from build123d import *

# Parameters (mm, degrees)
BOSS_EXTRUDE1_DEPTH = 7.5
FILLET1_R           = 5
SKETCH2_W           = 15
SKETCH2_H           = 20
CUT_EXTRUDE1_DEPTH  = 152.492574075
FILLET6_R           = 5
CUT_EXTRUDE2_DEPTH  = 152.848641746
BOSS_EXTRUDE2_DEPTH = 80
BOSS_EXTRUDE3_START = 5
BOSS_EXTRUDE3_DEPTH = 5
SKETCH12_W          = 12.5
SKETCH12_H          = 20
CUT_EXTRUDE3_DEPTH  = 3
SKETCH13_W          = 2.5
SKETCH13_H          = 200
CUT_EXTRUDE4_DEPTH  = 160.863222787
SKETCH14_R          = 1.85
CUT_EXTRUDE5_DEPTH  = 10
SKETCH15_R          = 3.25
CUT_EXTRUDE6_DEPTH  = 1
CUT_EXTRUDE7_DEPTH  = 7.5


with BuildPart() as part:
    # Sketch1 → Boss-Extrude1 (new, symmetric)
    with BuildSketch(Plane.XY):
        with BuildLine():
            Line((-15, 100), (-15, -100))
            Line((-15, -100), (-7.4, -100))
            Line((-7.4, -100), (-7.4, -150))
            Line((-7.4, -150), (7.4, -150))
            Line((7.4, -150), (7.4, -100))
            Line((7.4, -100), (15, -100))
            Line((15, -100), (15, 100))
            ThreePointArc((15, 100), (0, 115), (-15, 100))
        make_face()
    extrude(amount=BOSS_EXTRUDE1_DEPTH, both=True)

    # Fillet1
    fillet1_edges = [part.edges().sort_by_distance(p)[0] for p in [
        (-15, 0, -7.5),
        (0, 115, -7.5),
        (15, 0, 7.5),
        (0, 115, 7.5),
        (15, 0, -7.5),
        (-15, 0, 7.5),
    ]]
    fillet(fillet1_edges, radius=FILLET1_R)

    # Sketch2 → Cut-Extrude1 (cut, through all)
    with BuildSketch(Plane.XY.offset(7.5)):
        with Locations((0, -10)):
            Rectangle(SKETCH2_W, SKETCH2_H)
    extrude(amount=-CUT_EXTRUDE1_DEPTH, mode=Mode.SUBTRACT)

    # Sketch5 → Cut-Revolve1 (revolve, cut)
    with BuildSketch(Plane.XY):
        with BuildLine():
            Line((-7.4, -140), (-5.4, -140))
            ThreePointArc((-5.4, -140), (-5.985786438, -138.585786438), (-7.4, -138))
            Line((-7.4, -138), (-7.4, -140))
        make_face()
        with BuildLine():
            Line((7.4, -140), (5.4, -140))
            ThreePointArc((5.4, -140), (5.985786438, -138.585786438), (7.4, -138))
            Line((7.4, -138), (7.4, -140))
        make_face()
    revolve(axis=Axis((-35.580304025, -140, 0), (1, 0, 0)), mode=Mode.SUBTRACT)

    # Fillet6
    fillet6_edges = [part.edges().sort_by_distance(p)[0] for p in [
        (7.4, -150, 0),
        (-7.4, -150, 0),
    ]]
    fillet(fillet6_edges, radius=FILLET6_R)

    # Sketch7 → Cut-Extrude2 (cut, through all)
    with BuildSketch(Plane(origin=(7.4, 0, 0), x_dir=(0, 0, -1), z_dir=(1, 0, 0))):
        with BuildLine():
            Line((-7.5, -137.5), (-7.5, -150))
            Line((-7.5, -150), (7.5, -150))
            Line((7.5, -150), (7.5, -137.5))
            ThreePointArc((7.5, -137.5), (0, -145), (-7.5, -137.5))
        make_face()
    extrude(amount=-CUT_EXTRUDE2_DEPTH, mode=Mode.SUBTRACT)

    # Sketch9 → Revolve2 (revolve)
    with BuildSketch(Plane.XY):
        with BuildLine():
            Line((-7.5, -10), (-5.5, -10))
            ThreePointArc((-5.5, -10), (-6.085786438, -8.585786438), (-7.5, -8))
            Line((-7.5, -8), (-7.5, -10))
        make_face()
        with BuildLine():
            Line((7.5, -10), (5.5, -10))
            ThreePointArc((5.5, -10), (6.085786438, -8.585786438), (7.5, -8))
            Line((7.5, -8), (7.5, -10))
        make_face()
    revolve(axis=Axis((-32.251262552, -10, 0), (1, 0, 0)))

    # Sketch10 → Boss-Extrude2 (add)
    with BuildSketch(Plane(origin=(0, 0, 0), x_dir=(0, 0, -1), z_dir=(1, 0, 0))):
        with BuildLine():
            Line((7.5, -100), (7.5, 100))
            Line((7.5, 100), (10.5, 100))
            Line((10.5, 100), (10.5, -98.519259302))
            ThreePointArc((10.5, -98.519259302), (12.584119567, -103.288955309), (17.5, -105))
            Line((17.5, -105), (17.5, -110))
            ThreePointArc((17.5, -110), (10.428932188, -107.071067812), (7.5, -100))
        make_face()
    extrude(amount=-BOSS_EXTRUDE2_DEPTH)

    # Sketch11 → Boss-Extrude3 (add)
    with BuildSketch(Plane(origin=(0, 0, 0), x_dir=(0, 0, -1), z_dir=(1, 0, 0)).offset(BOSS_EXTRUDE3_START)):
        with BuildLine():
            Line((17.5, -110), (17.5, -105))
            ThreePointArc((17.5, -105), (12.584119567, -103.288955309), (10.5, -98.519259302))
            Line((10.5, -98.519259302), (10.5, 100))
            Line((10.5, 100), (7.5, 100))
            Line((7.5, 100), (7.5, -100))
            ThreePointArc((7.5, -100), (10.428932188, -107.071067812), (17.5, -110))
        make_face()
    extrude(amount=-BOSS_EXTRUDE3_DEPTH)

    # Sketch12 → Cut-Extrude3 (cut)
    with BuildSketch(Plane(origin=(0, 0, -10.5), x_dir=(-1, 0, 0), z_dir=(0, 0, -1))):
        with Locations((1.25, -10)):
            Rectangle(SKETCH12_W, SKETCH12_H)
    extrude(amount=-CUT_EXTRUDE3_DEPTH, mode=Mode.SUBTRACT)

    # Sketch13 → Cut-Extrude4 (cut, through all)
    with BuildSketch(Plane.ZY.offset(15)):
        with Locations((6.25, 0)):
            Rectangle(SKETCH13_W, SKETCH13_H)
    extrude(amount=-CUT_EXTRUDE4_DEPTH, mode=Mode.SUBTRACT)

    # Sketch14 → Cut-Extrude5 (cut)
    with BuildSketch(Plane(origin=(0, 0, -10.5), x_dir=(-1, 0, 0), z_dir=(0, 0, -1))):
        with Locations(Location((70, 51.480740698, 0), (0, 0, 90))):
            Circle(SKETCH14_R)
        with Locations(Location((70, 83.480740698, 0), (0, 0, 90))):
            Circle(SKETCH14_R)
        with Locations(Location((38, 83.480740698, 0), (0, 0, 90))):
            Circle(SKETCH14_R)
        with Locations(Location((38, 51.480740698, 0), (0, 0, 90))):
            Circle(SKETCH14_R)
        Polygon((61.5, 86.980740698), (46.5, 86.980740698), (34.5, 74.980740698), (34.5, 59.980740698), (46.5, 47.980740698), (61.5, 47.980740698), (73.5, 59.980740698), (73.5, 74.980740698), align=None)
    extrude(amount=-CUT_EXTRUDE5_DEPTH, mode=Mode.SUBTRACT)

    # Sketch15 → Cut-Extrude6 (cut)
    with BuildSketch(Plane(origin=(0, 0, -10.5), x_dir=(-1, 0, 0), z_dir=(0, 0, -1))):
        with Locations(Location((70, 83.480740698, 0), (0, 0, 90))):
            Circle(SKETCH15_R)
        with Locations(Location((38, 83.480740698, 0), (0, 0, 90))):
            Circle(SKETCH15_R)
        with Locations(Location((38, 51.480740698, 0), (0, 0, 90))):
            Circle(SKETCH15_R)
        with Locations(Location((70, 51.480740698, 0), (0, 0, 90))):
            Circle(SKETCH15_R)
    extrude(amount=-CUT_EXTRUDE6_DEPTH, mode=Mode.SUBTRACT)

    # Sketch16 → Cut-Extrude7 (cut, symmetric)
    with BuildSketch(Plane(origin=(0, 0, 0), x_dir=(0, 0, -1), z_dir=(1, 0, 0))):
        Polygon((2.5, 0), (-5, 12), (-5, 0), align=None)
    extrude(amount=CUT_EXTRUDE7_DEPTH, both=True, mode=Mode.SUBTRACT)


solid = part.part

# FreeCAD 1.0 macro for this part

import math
import FreeCAD as App
import Part
import Sketcher
from FreeCAD import Vector
Q = App.Units.Quantity


def edges_at(feature, points):
    """Names of the edges that pass closest to the given points."""
    edges = feature.Shape.Edges
    near = lambda p: min(range(len(edges)), key=lambda i: edges[i].distToShape(Part.Vertex(*p))[0])
    return sorted({f"Edge{near(p) + 1}" for p in points})


def add_polygon(sketch, points):
    """Adds a closed chain of lines whose ends are joined by coincident constraints."""
    first, n = sketch.GeometryCount, len(points)
    for a, b in zip(points, points[1:] + points[:1]):
        sketch.addGeometry(Part.LineSegment(App.Vector(*a, 0), App.Vector(*b, 0)), False)
    for i in range(n):
        sketch.addConstraint(Sketcher.Constraint("Coincident", first + i, 2, first + (i + 1) % n, 1))

doc = App.newDocument("Part")
body = doc.addObject("PartDesign::Body", "Body")

# Sketch on XY plane
sketch1 = body.newObject("Sketcher::SketchObject", "Sketch")
sketch1.AttachmentSupport = (doc.getObject("XY_Plane"), [""])
sketch1.MapMode = "FlatFace"
sketch1.addGeometry([
    Part.LineSegment(Vector(-15, 100, 0), Vector(-15, -100, 0)),  # 0
    Part.LineSegment(Vector(-15, -100, 0), Vector(-7, -100, 0)),  # 1
    Part.LineSegment(Vector(-7, -100, 0), Vector(-7, -150, 0)),  # 2
    Part.LineSegment(Vector(-7, -150, 0), Vector(7, -150, 0)),  # 3
    Part.LineSegment(Vector(7, -150, 0), Vector(7, -100, 0)),  # 4
    Part.LineSegment(Vector(7, -100, 0), Vector(15, -100, 0)),  # 5
    Part.LineSegment(Vector(15, -100, 0), Vector(15, 100, 0)),  # 6
    Part.ArcOfCircle(Part.Circle(Vector(0, 100, 0), Vector(0, 0, 1), 15), math.radians(0), math.radians(180)),  # 7
], False)
sketch1.addConstraint([
    Sketcher.Constraint("Coincident", 0, 2, 1, 1),
    Sketcher.Constraint("Coincident", 1, 2, 2, 1),
    Sketcher.Constraint("Coincident", 2, 2, 3, 1),
    Sketcher.Constraint("Coincident", 3, 2, 4, 1),
    Sketcher.Constraint("Coincident", 4, 2, 5, 1),
    Sketcher.Constraint("Coincident", 5, 2, 6, 1),
    Sketcher.Constraint("Tangent", 6, 2, 7, 1),
    Sketcher.Constraint("Tangent", 7, 2, 0, 1),
    Sketcher.Constraint("Vertical", 0),
    Sketcher.Constraint("Horizontal", 1),
    Sketcher.Constraint("Vertical", 2),
    Sketcher.Constraint("Horizontal", 3),
    Sketcher.Constraint("Vertical", 4),
    Sketcher.Constraint("Horizontal", 5),
    Sketcher.Constraint("Vertical", 6),
    Sketcher.Constraint("Symmetric", 0, 2, 6, 2, -1, 1),
    Sketcher.Constraint("Symmetric", 1, 2, 4, 2, -2),
    Sketcher.Constraint("Radius", 7, Q("15 mm")),
    Sketcher.Constraint("DistanceY", 0, 2, 0, 1, Q("200 mm")),
    Sketcher.Constraint("DistanceY", 2, 2, 2, 1, Q("50 mm")),
    Sketcher.Constraint("DistanceX", 1, 1, 1, 2, Q("7.6 mm")),
])
pad1 = body.newObject("PartDesign::Pad", "Pad")
pad1.Profile = sketch1
pad1.Length = 15
pad1.Midplane = True
doc.recompute()

fillet = body.newObject("PartDesign::Fillet", "Fillet")
fillet.Base = (pad1, edges_at(pad1, [
    (-15, 0, -7.5),
    (0, 115, -7.5),
    (15, 0, 7.5),
    (0, 115, 7.5),
    (15, 0, -7.5),
    (-15, 0, 7.5),
]))
fillet.Radius = 5

# Sketch on XY plane
sketch2 = body.newObject("Sketcher::SketchObject", "Sketch001")
sketch2.AttachmentSupport = (doc.getObject("XY_Plane"), [""])
sketch2.MapMode = "FlatFace"
sketch2.AttachmentOffset = App.Placement(Vector(0, 0, 7.5), App.Rotation())
add_polygon(sketch2, [(-8, 0), (-8, -20), (8, -20), (8, 0)])  # lines 0-3
sketch2.addConstraint([
    Sketcher.Constraint("Vertical", 0),
    Sketcher.Constraint("Horizontal", 1),
    Sketcher.Constraint("Vertical", 2),
    Sketcher.Constraint("Horizontal", 3),
    Sketcher.Constraint("Symmetric", 2, 2, 3, 2, -1, 1),
    Sketcher.Constraint("DistanceX", 1, 1, 1, 2, Q("15 mm")),
    Sketcher.Constraint("DistanceY", 0, 2, 0, 1, Q("20 mm")),
])
pocket1 = body.newObject("PartDesign::Pocket", "Pocket")
pocket1.Profile = sketch2
pocket1.Type = "ThroughAll"

# Sketch on XY plane
sketch3 = body.newObject("Sketcher::SketchObject", "Sketch002")
sketch3.AttachmentSupport = (doc.getObject("XY_Plane"), [""])
sketch3.MapMode = "FlatFace"
sketch3.addGeometry([
    Part.LineSegment(Vector(-7.4, -140, 0), Vector(-5.4, -140, 0)),  # 0
    Part.ArcOfCircle(Part.Circle(Vector(-7.4, -140, 0), Vector(0, 0, 1), 2), math.radians(0), math.radians(90)),  # 1
    Part.LineSegment(Vector(-7.4, -138, 0), Vector(-7.4, -140, 0)),  # 2
    Part.LineSegment(Vector(5.4, -140, 0), Vector(7.4, -140, 0)),  # 3
    Part.LineSegment(Vector(7.4, -140, 0), Vector(7.4, -138, 0)),  # 4
    Part.ArcOfCircle(Part.Circle(Vector(7.4, -140, 0), Vector(0, 0, 1), 2), math.radians(90), math.radians(180)),  # 5
], False)
sketch3.addGeometry(Part.LineSegment(Vector(-7.4, -140, 0), Vector(7.4, -140, 0)), True)  # axis
sketch3.addConstraint([
    Sketcher.Constraint("Coincident", 0, 2, 1, 1),
    Sketcher.Constraint("Coincident", 1, 2, 2, 1),
    Sketcher.Constraint("Coincident", 2, 2, 0, 1),
    Sketcher.Constraint("Coincident", 3, 2, 4, 1),
    Sketcher.Constraint("Coincident", 4, 2, 5, 1),
    Sketcher.Constraint("Coincident", 5, 2, 3, 1),
    Sketcher.Constraint("Horizontal", 0),
    Sketcher.Constraint("Vertical", 2),
    Sketcher.Constraint("Horizontal", 3),
    Sketcher.Constraint("Vertical", 4),
    Sketcher.Constraint("Horizontal", 6),
    Sketcher.Constraint("Coincident", 2, 2, 1, 3),
    Sketcher.Constraint("Coincident", 3, 2, 5, 3),
    Sketcher.Constraint("Coincident", 6, 1, 1, 3),
    Sketcher.Constraint("Coincident", 6, 2, 5, 3),
    Sketcher.Constraint("Equal", 1, 5),
    Sketcher.Constraint("Radius", 1, Q("2 mm")),
    Sketcher.Constraint("DistanceX", 6, 1, 6, 2, Q("14.8 mm")),
    Sketcher.Constraint("DistanceY", 1, 3, -1, 1, Q("140 mm")),
    Sketcher.Constraint("DistanceX", 1, 3, -1, 1, Q("7.4 mm")),
])
groove = body.newObject("PartDesign::Groove", "Groove")
groove.Profile = sketch3
groove.ReferenceAxis = (sketch3, ["Axis0"])
groove.Angle = 360
doc.recompute()

fillet2 = body.newObject("PartDesign::Fillet", "Fillet001")
fillet2.Base = (groove, edges_at(groove, [(7.4, -150, 0), (-7.4, -150, 0)]))
fillet2.Radius = 5

# Sketch on YZ plane
sketch4 = body.newObject("Sketcher::SketchObject", "Sketch003")
sketch4.AttachmentSupport = (doc.getObject("YZ_Plane"), [""])
sketch4.MapMode = "FlatFace"
sketch4.AttachmentOffset = App.Placement(Vector(0, 0, 7.4), App.Rotation())
sketch4.addGeometry([
    Part.LineSegment(Vector(-138, 8, 0), Vector(-150, 8, 0)),
    Part.LineSegment(Vector(-150, 8, 0), Vector(-150, -8, 0)),
    Part.LineSegment(Vector(-150, -8, 0), Vector(-138, -8, 0)),
    Part.ArcOfCircle(Part.Circle(Vector(-138, 0, 0), Vector(0, 0, 1), 8), math.radians(90), math.radians(270)),
], False)
sketch4.addConstraint([
    Sketcher.Constraint("Coincident", 0, 2, 1, 1),
    Sketcher.Constraint("Coincident", 1, 2, 2, 1),
    Sketcher.Constraint("Tangent", 2, 2, 3, 2),
    Sketcher.Constraint("Tangent", 3, 1, 0, 1),
    Sketcher.Constraint("Horizontal", 0),
    Sketcher.Constraint("Vertical", 1),
    Sketcher.Constraint("Horizontal", 2),
    Sketcher.Constraint("PointOnObject", 3, 3, -1),
    Sketcher.Constraint("Radius", 3, Q("7.5 mm")),
    Sketcher.Constraint("DistanceX", 0, 2, 0, 1, Q("12.5 mm")),
    Sketcher.Constraint("DistanceX", 0, 2, -1, 1, Q("150 mm")),
])
pocket2 = body.newObject("PartDesign::Pocket", "Pocket001")
pocket2.Profile = sketch4
pocket2.Type = "ThroughAll"

# Sketch on XY plane
sketch5 = body.newObject("Sketcher::SketchObject", "Sketch004")
sketch5.AttachmentSupport = (doc.getObject("XY_Plane"), [""])
sketch5.MapMode = "FlatFace"
sketch5.addGeometry([
    Part.LineSegment(Vector(-7.5, -10, 0), Vector(-5.5, -10, 0)),  # 0
    Part.ArcOfCircle(Part.Circle(Vector(-7.5, -10, 0), Vector(0, 0, 1), 2), math.radians(0), math.radians(90)),  # 1
    Part.LineSegment(Vector(-7.5, -8, 0), Vector(-7.5, -10, 0)),  # 2
    Part.LineSegment(Vector(5.5, -10, 0), Vector(7.5, -10, 0)),  # 3
    Part.LineSegment(Vector(7.5, -10, 0), Vector(7.5, -8, 0)),  # 4
    Part.ArcOfCircle(Part.Circle(Vector(7.5, -10, 0), Vector(0, 0, 1), 2), math.radians(90), math.radians(180)),  # 5
], False)
sketch5.addGeometry(Part.LineSegment(Vector(-7.5, -10, 0), Vector(7.5, -10, 0)), True)  # axis
sketch5.addConstraint([
    Sketcher.Constraint("Coincident", 0, 2, 1, 1),
    Sketcher.Constraint("Coincident", 1, 2, 2, 1),
    Sketcher.Constraint("Coincident", 2, 2, 0, 1),
    Sketcher.Constraint("Coincident", 3, 2, 4, 1),
    Sketcher.Constraint("Coincident", 4, 2, 5, 1),
    Sketcher.Constraint("Coincident", 5, 2, 3, 1),
    Sketcher.Constraint("Horizontal", 0),
    Sketcher.Constraint("Vertical", 2),
    Sketcher.Constraint("Horizontal", 3),
    Sketcher.Constraint("Vertical", 4),
    Sketcher.Constraint("Horizontal", 6),
    Sketcher.Constraint("Coincident", 2, 2, 1, 3),
    Sketcher.Constraint("Coincident", 3, 2, 5, 3),
    Sketcher.Constraint("Coincident", 6, 1, 1, 3),
    Sketcher.Constraint("Coincident", 6, 2, 5, 3),
    Sketcher.Constraint("Equal", 1, 5),
    Sketcher.Constraint("Radius", 1, Q("2 mm")),
    Sketcher.Constraint("DistanceX", 6, 1, 6, 2, Q("15 mm")),
    Sketcher.Constraint("DistanceY", 1, 3, -1, 1, Q("10 mm")),
    Sketcher.Constraint("DistanceX", 1, 3, -1, 1, Q("7.5 mm")),
])
revolution = body.newObject("PartDesign::Revolution", "Revolution")
revolution.Profile = sketch5
revolution.ReferenceAxis = (sketch5, ["Axis0"])
revolution.Angle = 360

# Sketch on YZ plane
sketch6 = body.newObject("Sketcher::SketchObject", "Sketch005")
sketch6.AttachmentSupport = (doc.getObject("YZ_Plane"), [""])
sketch6.MapMode = "FlatFace"
sketch6.addGeometry([
    Part.LineSegment(Vector(100, -7.5, 0), Vector(-100, -7.5, 0)),  # 0
    Part.ArcOfCircle(Part.Circle(Vector(-100, -17.5, 0), Vector(0, 0, 1), 10), math.radians(90), math.radians(180)),  # 1
    Part.LineSegment(Vector(-110, -17.5, 0), Vector(-105, -17.5, 0)),  # 2
    Part.ArcOfCircle(Part.Circle(Vector(-98.5, -17, 0), Vector(0, 0, 1), 6.5), math.radians(90), math.radians(184)),  # 3
    Part.LineSegment(Vector(-98.5, -10.5, 0), Vector(100, -10.5, 0)),  # 4
    Part.LineSegment(Vector(100, -10.5, 0), Vector(100, -7.5, 0)),  # 5
], False)
sketch6.addConstraint([
    Sketcher.Constraint("Tangent", 0, 2, 1, 1),
    Sketcher.Constraint("Coincident", 1, 2, 2, 1),
    Sketcher.Constraint("Coincident", 2, 2, 3, 2),
    Sketcher.Constraint("Tangent", 3, 1, 4, 1),
    Sketcher.Constraint("Coincident", 4, 2, 5, 1),
    Sketcher.Constraint("Coincident", 5, 2, 0, 1),
    Sketcher.Constraint("Horizontal", 0),
    Sketcher.Constraint("Horizontal", 2),
    Sketcher.Constraint("Horizontal", 4),
    Sketcher.Constraint("Vertical", 5),
    Sketcher.Constraint("Radius", 1, Q("10 mm")),
    Sketcher.Constraint("Radius", 3, Q("6.5 mm")),
    Sketcher.Constraint("DistanceX", 0, 2, 0, 1, Q("200 mm")),
    Sketcher.Constraint("DistanceX", 2, 1, 2, 2, Q("5 mm")),
    Sketcher.Constraint("DistanceY", 5, 1, 5, 2, Q("3 mm")),
    Sketcher.Constraint("DistanceX", 1, 3, -1, 1, Q("100 mm")),
    Sketcher.Constraint("DistanceY", 3, 3, -1, 1, Q("17 mm")),
    Sketcher.Constraint("DistanceY", 1, 2, 0, 2, Q("10 mm")),
])
pad2 = body.newObject("PartDesign::Pad", "Pad001")
pad2.Profile = sketch6
pad2.Length = 80
pad2.Reversed = True

# Sketch on YZ plane
sketch7 = body.newObject("Sketcher::SketchObject", "Sketch006")
sketch7.AttachmentSupport = (doc.getObject("YZ_Plane"), [""])
sketch7.MapMode = "FlatFace"
sketch7.AttachmentOffset = App.Placement(Vector(0, 0, 5), App.Rotation())
sketch7.addGeometry([
    Part.LineSegment(Vector(-110, -17.5, 0), Vector(-105, -17.5, 0)),  # 0
    Part.ArcOfCircle(Part.Circle(Vector(-98.5, -17, 0), Vector(0, 0, 1), 6.5), math.radians(90), math.radians(184)),  # 1
    Part.LineSegment(Vector(-98.5, -10.5, 0), Vector(100, -10.5, 0)),  # 2
    Part.LineSegment(Vector(100, -10.5, 0), Vector(100, -7.5, 0)),  # 3
    Part.LineSegment(Vector(100, -7.5, 0), Vector(-100, -7.5, 0)),  # 4
    Part.ArcOfCircle(Part.Circle(Vector(-100, -17.5, 0), Vector(0, 0, 1), 10), math.radians(90), math.radians(180)),  # 5
], False)
sketch7.addConstraint([
    Sketcher.Constraint("Coincident", 0, 2, 1, 2),
    Sketcher.Constraint("Tangent", 1, 1, 2, 1),
    Sketcher.Constraint("Coincident", 2, 2, 3, 1),
    Sketcher.Constraint("Coincident", 3, 2, 4, 1),
    Sketcher.Constraint("Tangent", 4, 2, 5, 1),
    Sketcher.Constraint("Coincident", 5, 2, 0, 1),
    Sketcher.Constraint("Horizontal", 0),
    Sketcher.Constraint("Horizontal", 2),
    Sketcher.Constraint("Vertical", 3),
    Sketcher.Constraint("Horizontal", 4),
    Sketcher.Constraint("Horizontal", 5, 3, 0, 2),
    Sketcher.Constraint("Radius", 5, Q("10 mm")),
    Sketcher.Constraint("Radius", 1, Q("6.5 mm")),
    Sketcher.Constraint("DistanceX", 0, 1, 0, 2, Q("5 mm")),
    Sketcher.Constraint("DistanceX", 4, 2, 4, 1, Q("200 mm")),
    Sketcher.Constraint("DistanceY", 3, 1, 3, 2, Q("3 mm")),
    Sketcher.Constraint("DistanceY", 1, 3, -1, 1, Q("17 mm")),
    Sketcher.Constraint("DistanceX", 5, 3, -1, 1, Q("100 mm")),
])
pad3 = body.newObject("PartDesign::Pad", "Pad002")
pad3.Profile = sketch7
pad3.Length = 5
pad3.Reversed = True

# Sketch on XY plane
sketch8 = body.newObject("Sketcher::SketchObject", "Sketch007")
sketch8.AttachmentSupport = (doc.getObject("XY_Plane"), [""])
sketch8.MapMode = "FlatFace"
sketch8.AttachmentOffset = App.Placement(Vector(0, 0, -10.5), App.Rotation())
add_polygon(sketch8, [(5, 0), (5, -20), (-8, -20), (-8, 0)])  # lines 0-3
sketch8.addConstraint([
    Sketcher.Constraint("Vertical", 0),
    Sketcher.Constraint("Horizontal", 1),
    Sketcher.Constraint("Vertical", 2),
    Sketcher.Constraint("Horizontal", 3),
    Sketcher.Constraint("PointOnObject", 2, 2, -1),
    Sketcher.Constraint("DistanceY", 0, 2, 0, 1, Q("20 mm")),
    Sketcher.Constraint("DistanceX", 1, 2, 1, 1, Q("12.5 mm")),
    Sketcher.Constraint("DistanceX", -1, 1, 0, 2, Q("5 mm")),
])
pocket3 = body.newObject("PartDesign::Pocket", "Pocket002")
pocket3.Profile = sketch8
pocket3.Length = 3
pocket3.Reversed = True

# Sketch on YZ plane
sketch9 = body.newObject("Sketcher::SketchObject", "Sketch008")
sketch9.AttachmentSupport = (doc.getObject("YZ_Plane"), [""])
sketch9.MapMode = "FlatFace"
sketch9.AttachmentOffset = App.Placement(Vector(0, 0, -15), App.Rotation())
add_polygon(sketch9, [(100, 5), (-100, 5), (-100, 7.5), (100, 7.5)])  # lines 0-3
sketch9.addConstraint([
    Sketcher.Constraint("Horizontal", 0),
    Sketcher.Constraint("Vertical", 1),
    Sketcher.Constraint("Horizontal", 2),
    Sketcher.Constraint("Vertical", 3),
    Sketcher.Constraint("DistanceX", 0, 2, 0, 1, Q("200 mm")),
    Sketcher.Constraint("DistanceY", 1, 1, 1, 2, Q("2.5 mm")),
    Sketcher.Constraint("DistanceX", 0, 2, -1, 1, Q("100 mm")),
    Sketcher.Constraint("DistanceY", -1, 1, 0, 2, Q("5 mm")),
])
pocket4 = body.newObject("PartDesign::Pocket", "Pocket003")
pocket4.Profile = sketch9
pocket4.Type = "ThroughAll"
pocket4.Reversed = True

# Sketch on XY plane
sketch10 = body.newObject("Sketcher::SketchObject", "Sketch009")
sketch10.AttachmentSupport = (doc.getObject("XY_Plane"), [""])
sketch10.MapMode = "FlatFace"
sketch10.AttachmentOffset = App.Placement(Vector(0, 0, -10.5), App.Rotation())
sketch10.addGeometry(Part.Circle(Vector(-70, 51.5, 0), Vector(0, 0, 1), 1.9), False)  # 0
sketch10.addGeometry(Part.Circle(Vector(-70, 83.5, 0), Vector(0, 0, 1), 1.9), False)  # 1
sketch10.addGeometry(Part.Circle(Vector(-38, 83.5, 0), Vector(0, 0, 1), 1.9), False)  # 2
sketch10.addGeometry(Part.Circle(Vector(-38, 51.5, 0), Vector(0, 0, 1), 1.9), False)  # 3
add_polygon(sketch10, [(-61.5, 87), (-46.5, 87), (-34.5, 75), (-34.5, 60), (-46.5, 48), (-61.5, 48), (-73.5, 60), (-73.5, 75)])  # lines 4-11
sketch10.addConstraint([
    Sketcher.Constraint("Horizontal", 4),
    Sketcher.Constraint("Vertical", 6),
    Sketcher.Constraint("Horizontal", 8),
    Sketcher.Constraint("Vertical", 10),
    Sketcher.Constraint("Equal", 0, 1),
    Sketcher.Constraint("Equal", 1, 2),
    Sketcher.Constraint("Equal", 2, 3),
    Sketcher.Constraint("Perpendicular", 5, 7),
    Sketcher.Constraint("Perpendicular", 7, 9),
    Sketcher.Constraint("Perpendicular", 9, 11),
    Sketcher.Constraint("Horizontal", 1, 3, 2, 3),
    Sketcher.Constraint("Horizontal", 0, 3, 3, 3),
    Sketcher.Constraint("Horizontal", 6, 2, 9, 2),
    Sketcher.Constraint("Horizontal", 5, 2, 10, 2),
    Sketcher.Constraint("Vertical", 0, 3, 1, 3),
    Sketcher.Constraint("Vertical", 2, 3, 3, 3),
    Sketcher.Constraint("Vertical", 4, 2, 7, 2),
    Sketcher.Constraint("Vertical", 8, 2, 11, 2),
    Sketcher.Constraint("Equal", 8, 6),
    Sketcher.Constraint("Diameter", 0, Q("3.7 mm")),
    Sketcher.Constraint("DistanceX", 4, 1, 4, 2, Q("15 mm")),
    Sketcher.Constraint("DistanceX", 0, 3, -1, 1, Q("70 mm")),
    Sketcher.Constraint("DistanceX", 2, 3, -1, 1, Q("38 mm")),
    Sketcher.Constraint("DistanceY", 0, 3, 1, 3, Q("32 mm")),
    Sketcher.Constraint("DistanceX", 4, 2, 5, 2, Q("12 mm")),
    Sketcher.Constraint("DistanceX", 4, 2, -1, 1, Q("46.5 mm")),
    Sketcher.Constraint("DistanceY", 2, 3, 4, 2, Q("3.5 mm")),
    Sketcher.Constraint("DistanceY", -1, 1, 0, 3, Q("51.480741 mm")),
])
pocket5 = body.newObject("PartDesign::Pocket", "Pocket004")
pocket5.Profile = sketch10
pocket5.Length = 10
pocket5.Reversed = True

# Sketch on XY plane
sketch11 = body.newObject("Sketcher::SketchObject", "Sketch010")
sketch11.AttachmentSupport = (doc.getObject("XY_Plane"), [""])
sketch11.MapMode = "FlatFace"
sketch11.AttachmentOffset = App.Placement(Vector(0, 0, -10.5), App.Rotation())
sketch11.addGeometry([
    Part.Circle(Vector(-70, 83.5, 0), Vector(0, 0, 1), 3.2),
    Part.Circle(Vector(-38, 83.5, 0), Vector(0, 0, 1), 3.2),
    Part.Circle(Vector(-38, 51.5, 0), Vector(0, 0, 1), 3.2),
    Part.Circle(Vector(-70, 51.5, 0), Vector(0, 0, 1), 3.2),
], False)
sketch11.addConstraint([
    Sketcher.Constraint("Equal", 0, 1),
    Sketcher.Constraint("Equal", 1, 2),
    Sketcher.Constraint("Equal", 2, 3),
    Sketcher.Constraint("Horizontal", 0, 3, 1, 3),
    Sketcher.Constraint("Horizontal", 2, 3, 3, 3),
    Sketcher.Constraint("Vertical", 1, 3, 2, 3),
    Sketcher.Constraint("Vertical", 0, 3, 3, 3),
    Sketcher.Constraint("Diameter", 0, Q("6.5 mm")),
    Sketcher.Constraint("DistanceX", 0, 3, -1, 1, Q("70 mm")),
    Sketcher.Constraint("DistanceX", 1, 3, -1, 1, Q("38 mm")),
    Sketcher.Constraint("DistanceY", 2, 3, 1, 3, Q("32 mm")),
    Sketcher.Constraint("DistanceY", -1, 1, 0, 3, Q("83.480741 mm")),
])
pocket6 = body.newObject("PartDesign::Pocket", "Pocket005")
pocket6.Profile = sketch11
pocket6.Length = 1
pocket6.Reversed = True

# Sketch on YZ plane
sketch12 = body.newObject("Sketcher::SketchObject", "Sketch011")
sketch12.AttachmentSupport = (doc.getObject("YZ_Plane"), [""])
sketch12.MapMode = "FlatFace"
add_polygon(sketch12, [(0, -2), (12, 5), (0, 5)])  # lines 0-2
sketch12.addConstraint([
    Sketcher.Constraint("Horizontal", 1),
    Sketcher.Constraint("Vertical", 2),
    Sketcher.Constraint("PointOnObject", 1, 2, -2),
    Sketcher.Constraint("DistanceX", 1, 2, 1, 1, Q("12 mm")),
    Sketcher.Constraint("DistanceY", 2, 2, 2, 1, Q("7.5 mm")),
    Sketcher.Constraint("DistanceY", -1, 1, 0, 2, Q("5 mm")),
])
pocket7 = body.newObject("PartDesign::Pocket", "Pocket006")
pocket7.Profile = sketch12
pocket7.Length = 15
pocket7.Midplane = True

doc.recompute()
